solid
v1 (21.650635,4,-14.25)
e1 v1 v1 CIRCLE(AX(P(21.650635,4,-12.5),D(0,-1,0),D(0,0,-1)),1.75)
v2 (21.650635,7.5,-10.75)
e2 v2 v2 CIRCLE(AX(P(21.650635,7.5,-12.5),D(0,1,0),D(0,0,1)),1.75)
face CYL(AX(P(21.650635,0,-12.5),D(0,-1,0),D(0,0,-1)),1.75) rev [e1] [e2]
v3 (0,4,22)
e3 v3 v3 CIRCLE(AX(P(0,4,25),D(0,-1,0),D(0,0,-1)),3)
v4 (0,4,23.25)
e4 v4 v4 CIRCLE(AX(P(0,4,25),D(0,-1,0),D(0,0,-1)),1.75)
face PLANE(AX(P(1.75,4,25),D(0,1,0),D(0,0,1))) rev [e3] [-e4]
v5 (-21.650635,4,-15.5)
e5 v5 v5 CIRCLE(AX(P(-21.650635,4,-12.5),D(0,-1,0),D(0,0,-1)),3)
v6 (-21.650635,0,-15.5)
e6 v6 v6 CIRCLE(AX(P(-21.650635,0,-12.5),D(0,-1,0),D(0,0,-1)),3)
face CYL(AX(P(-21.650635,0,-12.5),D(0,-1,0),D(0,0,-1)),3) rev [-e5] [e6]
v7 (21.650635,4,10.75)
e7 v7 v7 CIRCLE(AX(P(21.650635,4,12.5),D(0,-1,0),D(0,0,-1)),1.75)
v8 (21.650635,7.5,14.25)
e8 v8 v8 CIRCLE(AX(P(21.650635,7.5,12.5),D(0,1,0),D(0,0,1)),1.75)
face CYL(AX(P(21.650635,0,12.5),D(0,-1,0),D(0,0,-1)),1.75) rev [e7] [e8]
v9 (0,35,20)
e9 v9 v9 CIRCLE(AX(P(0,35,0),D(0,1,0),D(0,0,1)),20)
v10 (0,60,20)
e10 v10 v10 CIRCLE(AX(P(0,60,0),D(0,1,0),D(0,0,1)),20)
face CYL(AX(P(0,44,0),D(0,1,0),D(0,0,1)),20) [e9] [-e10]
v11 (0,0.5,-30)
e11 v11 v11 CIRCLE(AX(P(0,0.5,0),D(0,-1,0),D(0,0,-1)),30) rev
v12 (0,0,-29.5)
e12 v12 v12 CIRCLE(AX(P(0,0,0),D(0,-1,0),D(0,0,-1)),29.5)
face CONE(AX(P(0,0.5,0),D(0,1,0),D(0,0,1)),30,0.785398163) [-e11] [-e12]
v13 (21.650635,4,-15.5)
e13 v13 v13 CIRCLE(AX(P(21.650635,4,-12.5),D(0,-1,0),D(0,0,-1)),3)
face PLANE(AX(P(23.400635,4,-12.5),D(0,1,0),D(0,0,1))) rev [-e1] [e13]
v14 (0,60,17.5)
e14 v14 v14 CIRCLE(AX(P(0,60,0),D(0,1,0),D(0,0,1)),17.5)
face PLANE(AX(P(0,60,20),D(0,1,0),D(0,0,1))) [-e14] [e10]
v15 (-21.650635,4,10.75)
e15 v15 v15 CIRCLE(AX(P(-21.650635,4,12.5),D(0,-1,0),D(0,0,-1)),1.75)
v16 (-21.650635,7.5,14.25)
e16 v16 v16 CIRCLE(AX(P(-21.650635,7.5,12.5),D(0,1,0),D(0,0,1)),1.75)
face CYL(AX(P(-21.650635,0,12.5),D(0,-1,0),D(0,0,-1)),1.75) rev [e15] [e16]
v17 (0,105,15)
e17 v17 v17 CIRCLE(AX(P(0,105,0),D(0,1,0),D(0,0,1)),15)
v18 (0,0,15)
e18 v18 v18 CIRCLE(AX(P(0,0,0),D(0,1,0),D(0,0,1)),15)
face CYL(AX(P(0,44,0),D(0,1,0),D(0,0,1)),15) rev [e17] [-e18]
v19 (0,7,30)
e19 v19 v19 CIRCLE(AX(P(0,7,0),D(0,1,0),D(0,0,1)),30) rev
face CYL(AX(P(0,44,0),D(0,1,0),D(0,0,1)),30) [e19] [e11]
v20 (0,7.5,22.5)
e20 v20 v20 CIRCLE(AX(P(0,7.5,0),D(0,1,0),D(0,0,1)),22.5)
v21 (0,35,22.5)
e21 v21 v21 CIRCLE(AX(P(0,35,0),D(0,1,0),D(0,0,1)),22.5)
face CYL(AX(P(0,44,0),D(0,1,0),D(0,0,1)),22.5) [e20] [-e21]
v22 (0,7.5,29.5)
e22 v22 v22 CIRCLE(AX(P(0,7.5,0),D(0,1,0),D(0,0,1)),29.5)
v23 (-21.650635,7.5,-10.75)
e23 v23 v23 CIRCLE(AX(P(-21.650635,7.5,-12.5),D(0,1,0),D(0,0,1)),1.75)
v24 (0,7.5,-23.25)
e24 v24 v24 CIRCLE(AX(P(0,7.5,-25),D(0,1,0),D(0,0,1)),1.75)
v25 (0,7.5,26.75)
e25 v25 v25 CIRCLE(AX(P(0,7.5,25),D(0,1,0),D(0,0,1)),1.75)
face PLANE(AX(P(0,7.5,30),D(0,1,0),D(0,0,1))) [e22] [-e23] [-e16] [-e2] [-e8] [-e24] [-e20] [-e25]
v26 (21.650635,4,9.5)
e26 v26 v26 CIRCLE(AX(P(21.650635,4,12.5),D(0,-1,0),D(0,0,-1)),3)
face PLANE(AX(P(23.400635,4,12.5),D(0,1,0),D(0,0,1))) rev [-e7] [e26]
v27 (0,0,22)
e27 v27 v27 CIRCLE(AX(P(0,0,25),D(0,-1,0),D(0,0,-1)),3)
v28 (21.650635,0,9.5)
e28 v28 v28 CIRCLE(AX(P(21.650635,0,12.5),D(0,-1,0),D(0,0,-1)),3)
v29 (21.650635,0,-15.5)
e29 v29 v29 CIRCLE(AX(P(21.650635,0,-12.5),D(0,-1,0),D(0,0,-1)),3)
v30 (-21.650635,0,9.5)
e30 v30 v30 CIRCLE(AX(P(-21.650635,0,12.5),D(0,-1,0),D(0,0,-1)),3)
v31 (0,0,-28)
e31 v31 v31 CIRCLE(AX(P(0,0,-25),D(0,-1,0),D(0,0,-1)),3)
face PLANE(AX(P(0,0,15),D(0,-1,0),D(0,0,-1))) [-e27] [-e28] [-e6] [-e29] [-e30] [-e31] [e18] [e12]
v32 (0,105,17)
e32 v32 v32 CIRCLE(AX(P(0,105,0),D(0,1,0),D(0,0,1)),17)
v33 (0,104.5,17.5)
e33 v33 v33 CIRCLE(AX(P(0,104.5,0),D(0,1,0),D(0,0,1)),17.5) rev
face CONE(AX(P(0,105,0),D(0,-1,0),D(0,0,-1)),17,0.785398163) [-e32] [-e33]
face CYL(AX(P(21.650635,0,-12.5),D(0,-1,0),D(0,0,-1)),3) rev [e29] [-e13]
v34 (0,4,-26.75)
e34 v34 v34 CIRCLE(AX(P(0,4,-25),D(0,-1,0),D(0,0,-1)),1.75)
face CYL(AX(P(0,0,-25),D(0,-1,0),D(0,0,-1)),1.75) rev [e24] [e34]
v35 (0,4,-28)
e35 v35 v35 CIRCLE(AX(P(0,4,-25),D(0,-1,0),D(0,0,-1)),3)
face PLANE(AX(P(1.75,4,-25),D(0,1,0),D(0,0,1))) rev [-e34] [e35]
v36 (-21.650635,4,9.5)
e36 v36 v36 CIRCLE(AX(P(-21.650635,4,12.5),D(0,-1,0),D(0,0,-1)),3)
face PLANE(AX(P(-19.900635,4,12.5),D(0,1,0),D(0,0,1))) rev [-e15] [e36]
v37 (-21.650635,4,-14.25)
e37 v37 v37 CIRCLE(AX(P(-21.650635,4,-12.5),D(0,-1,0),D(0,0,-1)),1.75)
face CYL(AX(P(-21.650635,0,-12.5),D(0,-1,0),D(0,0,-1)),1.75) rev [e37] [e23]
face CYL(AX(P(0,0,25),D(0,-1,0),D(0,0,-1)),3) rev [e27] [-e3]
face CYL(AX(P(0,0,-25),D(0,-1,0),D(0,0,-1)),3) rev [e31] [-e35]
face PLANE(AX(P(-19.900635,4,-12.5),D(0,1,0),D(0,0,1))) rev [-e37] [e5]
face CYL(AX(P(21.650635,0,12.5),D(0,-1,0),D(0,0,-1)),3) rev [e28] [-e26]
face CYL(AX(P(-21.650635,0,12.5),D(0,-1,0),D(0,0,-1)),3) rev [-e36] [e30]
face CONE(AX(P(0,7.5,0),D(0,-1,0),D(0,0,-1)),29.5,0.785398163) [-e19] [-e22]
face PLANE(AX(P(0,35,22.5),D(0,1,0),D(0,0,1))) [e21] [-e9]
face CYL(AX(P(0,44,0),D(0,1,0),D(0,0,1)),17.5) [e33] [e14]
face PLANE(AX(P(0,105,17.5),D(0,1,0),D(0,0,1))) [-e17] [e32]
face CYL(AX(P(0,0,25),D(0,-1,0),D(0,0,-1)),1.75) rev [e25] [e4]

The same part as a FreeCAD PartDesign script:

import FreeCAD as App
import Part
import Sketcher
from FreeCAD import Vector
Q = App.Units.Quantity


def edges_at(feature, points):
    """Names of the edges that pass closest to the given points."""
    edges = feature.Shape.Edges
    near = lambda p: min(range(len(edges)), key=lambda i: edges[i].distToShape(Part.Vertex(*p))[0])
    return sorted({f"Edge{near(p) + 1}" for p in points})


def add_polygon(sketch, points):
    """Adds a closed chain of lines whose ends are joined by coincident constraints."""
    first, n = sketch.GeometryCount, len(points)
    for a, b in zip(points, points[1:] + points[:1]):
        sketch.addGeometry(Part.LineSegment(App.Vector(*a, 0), App.Vector(*b, 0)), False)
    for i in range(n):
        sketch.addConstraint(Sketcher.Constraint("Coincident", first + i, 2, first + (i + 1) % n, 1))

doc = App.newDocument("Part")
body = doc.addObject("PartDesign::Body", "Body")

# Sketch on YZ plane
sketch1 = doc.addObject("Sketcher::SketchObject", "Sketch")
body.addObject(sketch1)
sketch1.AttachmentSupport = (doc.YZ_Plane, [""])
sketch1.MapMode = "FlatFace"
add_polygon(sketch1, [(0, 15), (105, 15), (105, 17.5), (60, 17.5), (60, 20), (35, 20), (35, 22.5), (7.5, 22.5), (7.5, 30), (0, 30)])  # lines 0-9
sketch1.addConstraint([
    Sketcher.Constraint("Horizontal", 0),
    Sketcher.Constraint("Vertical", 1),
    Sketcher.Constraint("Horizontal", 2),
    Sketcher.Constraint("Vertical", 3),
    Sketcher.Constraint("Horizontal", 4),
    Sketcher.Constraint("Vertical", 5),
    Sketcher.Constraint("Horizontal", 6),
    Sketcher.Constraint("Vertical", 7),
    Sketcher.Constraint("Horizontal", 8),
    Sketcher.Constraint("Vertical", 9),
    Sketcher.Constraint("PointOnObject", 8, 2, -2),
    Sketcher.Constraint("Equal", 1, 3),
    Sketcher.Constraint("Equal", 3, 5),
    Sketcher.Constraint("Equal", 8, 7),
    Sketcher.Constraint("DistanceX", 0, 1, 0, 2, Q("105 mm")),
    Sketcher.Constraint("DistanceX", 2, 2, 2, 1, Q("45 mm")),
    Sketcher.Constraint("DistanceX", 4, 2, 4, 1, Q("25 mm")),
    Sketcher.Constraint("DistanceY", 9, 2, 9, 1, Q("15 mm")),
    Sketcher.Constraint("DistanceX", 6, 2, 6, 1, Q("27.5 mm")),
    Sketcher.Constraint("DistanceY", -1, 1, 0, 2, Q("15 mm")),
])
revolution = doc.addObject("PartDesign::Revolution", "Revolution")
body.addObject(revolution)
revolution.Profile = sketch1
revolution.ReferenceAxis = (sketch1, ["H_Axis"])
revolution.Angle = 360

# Sketch on XZ plane
sketch2 = doc.addObject("Sketcher::SketchObject", "Sketch001")
body.addObject(sketch2)
sketch2.AttachmentSupport = (doc.XZ_Plane, [""])
sketch2.MapMode = "FlatFace"
sketch2.addGeometry(Part.Circle(Vector(0, 25, 0), Vector(0, 0, 1), 1.75), False)
sketch2.addConstraint([
    Sketcher.Constraint("PointOnObject", 0, 3, -2),
    Sketcher.Constraint("Diameter", 0, Q("3.5 mm")),
    Sketcher.Constraint("DistanceY", -1, 1, 0, 3, Q("25 mm")),
])
doc.recompute()
hole = doc.addObject("PartDesign::Hole", "Hole")
body.addObject(hole)
hole.Profile = sketch2
hole.ThreadType = "None"
hole.Diameter = 3.5
hole.DepthType = "ThroughAll"
hole.HoleCutType = "Counterbore"
hole.HoleCutDiameter = 6
hole.HoleCutDepth = 4
doc.recompute()

polarpattern = doc.addObject("PartDesign::PolarPattern", "PolarPattern")
body.addObject(polarpattern)
polarpattern.Originals = [hole]
polarpattern.Axis = (doc.Y_Axis, [""])
polarpattern.Angle = 360
polarpattern.Occurrences = 6
body.Tip = polarpattern
doc.recompute()

chamfer = doc.addObject("PartDesign::Chamfer", "Chamfer")
body.addObject(chamfer)
chamfer.Base = (polarpattern, edges_at(polarpattern, [(0, 7.5, -30), (0, 0, -30), (0, 105, -17.5)]))
chamfer.Size = 0.5

doc.recompute()
